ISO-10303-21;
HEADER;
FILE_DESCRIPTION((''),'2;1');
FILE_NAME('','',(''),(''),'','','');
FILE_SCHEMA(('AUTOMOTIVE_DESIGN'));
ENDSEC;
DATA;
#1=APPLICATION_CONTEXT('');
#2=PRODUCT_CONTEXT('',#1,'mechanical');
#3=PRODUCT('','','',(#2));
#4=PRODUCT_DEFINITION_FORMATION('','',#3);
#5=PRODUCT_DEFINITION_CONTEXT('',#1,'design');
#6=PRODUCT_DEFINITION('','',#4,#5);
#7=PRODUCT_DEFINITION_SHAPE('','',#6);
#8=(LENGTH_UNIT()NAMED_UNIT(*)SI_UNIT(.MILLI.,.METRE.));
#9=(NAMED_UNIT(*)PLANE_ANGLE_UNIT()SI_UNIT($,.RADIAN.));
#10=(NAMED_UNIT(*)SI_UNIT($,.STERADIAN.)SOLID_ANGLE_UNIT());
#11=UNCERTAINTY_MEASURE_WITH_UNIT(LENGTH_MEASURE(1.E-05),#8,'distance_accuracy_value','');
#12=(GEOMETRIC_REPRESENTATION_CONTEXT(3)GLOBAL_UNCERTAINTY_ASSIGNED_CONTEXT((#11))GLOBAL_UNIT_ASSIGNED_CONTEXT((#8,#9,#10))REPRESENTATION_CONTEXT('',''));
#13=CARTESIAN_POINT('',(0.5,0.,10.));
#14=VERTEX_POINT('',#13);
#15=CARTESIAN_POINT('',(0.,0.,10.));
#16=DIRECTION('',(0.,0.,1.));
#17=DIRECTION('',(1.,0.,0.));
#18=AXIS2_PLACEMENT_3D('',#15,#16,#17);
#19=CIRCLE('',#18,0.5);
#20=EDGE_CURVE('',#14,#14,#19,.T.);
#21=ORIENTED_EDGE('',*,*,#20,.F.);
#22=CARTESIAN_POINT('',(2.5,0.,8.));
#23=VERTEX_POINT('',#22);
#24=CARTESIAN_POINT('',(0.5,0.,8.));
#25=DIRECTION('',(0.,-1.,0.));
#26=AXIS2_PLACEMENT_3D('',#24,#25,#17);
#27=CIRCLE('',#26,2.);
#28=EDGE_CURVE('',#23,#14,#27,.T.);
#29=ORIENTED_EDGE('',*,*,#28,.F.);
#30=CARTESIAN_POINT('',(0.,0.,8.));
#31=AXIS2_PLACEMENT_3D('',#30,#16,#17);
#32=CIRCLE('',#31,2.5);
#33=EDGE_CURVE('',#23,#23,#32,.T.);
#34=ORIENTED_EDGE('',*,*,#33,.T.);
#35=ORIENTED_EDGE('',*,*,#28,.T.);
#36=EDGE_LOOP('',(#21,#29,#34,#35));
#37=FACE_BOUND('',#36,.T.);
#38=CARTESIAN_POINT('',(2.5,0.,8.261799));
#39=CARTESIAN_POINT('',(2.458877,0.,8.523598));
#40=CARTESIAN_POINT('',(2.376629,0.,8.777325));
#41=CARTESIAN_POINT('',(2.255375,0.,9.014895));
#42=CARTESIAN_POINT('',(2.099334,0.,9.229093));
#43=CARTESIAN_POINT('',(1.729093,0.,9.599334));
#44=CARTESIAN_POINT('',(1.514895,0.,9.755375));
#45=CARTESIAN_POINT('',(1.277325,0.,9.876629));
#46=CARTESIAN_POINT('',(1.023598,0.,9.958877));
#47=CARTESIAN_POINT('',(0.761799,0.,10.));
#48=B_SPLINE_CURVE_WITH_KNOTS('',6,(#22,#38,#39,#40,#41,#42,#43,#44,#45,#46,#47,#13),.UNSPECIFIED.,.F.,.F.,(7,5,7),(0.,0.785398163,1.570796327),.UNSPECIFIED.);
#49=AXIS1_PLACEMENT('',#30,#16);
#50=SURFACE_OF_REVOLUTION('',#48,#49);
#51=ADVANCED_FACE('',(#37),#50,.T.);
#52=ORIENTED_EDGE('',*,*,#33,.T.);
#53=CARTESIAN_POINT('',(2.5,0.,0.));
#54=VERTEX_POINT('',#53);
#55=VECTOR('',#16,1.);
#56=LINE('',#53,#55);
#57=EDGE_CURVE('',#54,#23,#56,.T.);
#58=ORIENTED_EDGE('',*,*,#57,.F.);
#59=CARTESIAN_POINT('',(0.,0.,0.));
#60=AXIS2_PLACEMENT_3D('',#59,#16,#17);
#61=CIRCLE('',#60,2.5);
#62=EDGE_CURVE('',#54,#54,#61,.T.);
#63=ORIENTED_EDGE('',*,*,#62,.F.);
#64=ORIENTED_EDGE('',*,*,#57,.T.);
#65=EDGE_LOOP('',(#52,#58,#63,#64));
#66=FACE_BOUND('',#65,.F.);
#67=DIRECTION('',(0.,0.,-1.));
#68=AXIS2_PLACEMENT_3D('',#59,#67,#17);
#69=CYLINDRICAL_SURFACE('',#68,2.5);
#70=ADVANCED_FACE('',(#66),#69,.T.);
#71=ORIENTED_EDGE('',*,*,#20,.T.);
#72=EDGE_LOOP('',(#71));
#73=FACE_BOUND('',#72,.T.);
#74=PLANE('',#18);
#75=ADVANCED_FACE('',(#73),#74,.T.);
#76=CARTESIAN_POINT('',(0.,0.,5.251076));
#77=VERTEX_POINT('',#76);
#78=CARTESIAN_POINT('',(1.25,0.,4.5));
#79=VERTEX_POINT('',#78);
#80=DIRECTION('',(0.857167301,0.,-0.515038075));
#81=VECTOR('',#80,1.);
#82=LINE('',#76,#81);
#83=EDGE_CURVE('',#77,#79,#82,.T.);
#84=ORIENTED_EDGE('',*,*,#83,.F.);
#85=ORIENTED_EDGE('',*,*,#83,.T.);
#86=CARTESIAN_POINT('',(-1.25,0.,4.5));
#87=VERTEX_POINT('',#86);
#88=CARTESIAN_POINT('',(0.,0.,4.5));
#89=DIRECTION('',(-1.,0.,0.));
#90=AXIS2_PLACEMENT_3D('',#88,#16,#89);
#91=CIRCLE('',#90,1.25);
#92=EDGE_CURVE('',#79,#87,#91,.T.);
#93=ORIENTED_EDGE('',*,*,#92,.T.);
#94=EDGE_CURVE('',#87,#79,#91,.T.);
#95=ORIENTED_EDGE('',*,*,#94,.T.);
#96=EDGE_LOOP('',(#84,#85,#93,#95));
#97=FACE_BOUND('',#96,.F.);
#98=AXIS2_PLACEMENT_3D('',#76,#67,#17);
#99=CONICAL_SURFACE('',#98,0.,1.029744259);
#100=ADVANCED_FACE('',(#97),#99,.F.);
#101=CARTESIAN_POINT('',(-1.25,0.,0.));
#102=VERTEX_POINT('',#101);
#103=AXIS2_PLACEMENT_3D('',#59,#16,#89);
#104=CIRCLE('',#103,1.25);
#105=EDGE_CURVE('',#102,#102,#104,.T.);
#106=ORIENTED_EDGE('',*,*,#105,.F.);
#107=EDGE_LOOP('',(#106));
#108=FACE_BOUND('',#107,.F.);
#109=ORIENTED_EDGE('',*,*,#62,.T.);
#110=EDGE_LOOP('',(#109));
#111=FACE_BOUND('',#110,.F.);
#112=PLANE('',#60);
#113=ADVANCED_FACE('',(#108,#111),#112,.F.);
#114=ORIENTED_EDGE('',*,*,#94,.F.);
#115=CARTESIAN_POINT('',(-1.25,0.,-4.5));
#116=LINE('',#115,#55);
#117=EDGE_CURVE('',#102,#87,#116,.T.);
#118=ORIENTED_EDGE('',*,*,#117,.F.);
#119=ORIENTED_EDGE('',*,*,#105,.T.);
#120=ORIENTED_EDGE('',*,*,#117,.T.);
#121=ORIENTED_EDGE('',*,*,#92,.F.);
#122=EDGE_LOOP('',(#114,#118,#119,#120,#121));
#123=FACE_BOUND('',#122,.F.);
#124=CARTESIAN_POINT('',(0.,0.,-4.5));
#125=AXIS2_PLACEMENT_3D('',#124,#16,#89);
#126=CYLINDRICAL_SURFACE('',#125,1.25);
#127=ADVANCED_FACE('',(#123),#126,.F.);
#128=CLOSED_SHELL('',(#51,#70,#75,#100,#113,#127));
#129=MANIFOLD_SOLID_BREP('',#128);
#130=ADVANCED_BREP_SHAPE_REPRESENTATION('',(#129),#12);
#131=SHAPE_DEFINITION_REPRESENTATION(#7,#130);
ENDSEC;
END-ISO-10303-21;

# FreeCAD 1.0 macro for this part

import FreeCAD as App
import Part
import Sketcher


def edges_at(feature, points):
    """Names of the edges that pass closest to the given points."""
    edges = feature.Shape.Edges
    near = lambda p: min(range(len(edges)), key=lambda i: edges[i].distToShape(Part.Vertex(*p))[0])
    return sorted({f"Edge{near(p) + 1}" for p in points})

doc = App.newDocument("Part")
body = doc.addObject("PartDesign::Body", "Body")

# Sketch on XY plane
sketch1 = body.newObject("Sketcher::SketchObject", "Sketch")
sketch1.AttachmentSupport = (doc.getObject("XY_Plane"), [""])
sketch1.MapMode = "FlatFace"
sketch1.addGeometry(Part.Circle(App.Vector(0, 0, 0), App.Vector(0, 0, 1), 2.5), False)
sketch1.addConstraint([
    Sketcher.Constraint("Coincident", 0, 3, -1, 1),
    Sketcher.Constraint("Diameter", 0, 5.0),
])
pad1 = body.newObject("PartDesign::Pad", "Pad")
pad1.Profile = sketch1
pad1.Length = 10
doc.recompute()

fillet = body.newObject("PartDesign::Fillet", "Fillet")
fillet.Base = (pad1, edges_at(pad1, [(-2.5, 0, 10)]))
fillet.Radius = 2

# Sketch on XY plane
sketch2 = body.newObject("Sketcher::SketchObject", "Sketch001")
sketch2.AttachmentSupport = (doc.getObject("XY_Plane"), [""])
sketch2.MapMode = "FlatFace"
sketch2.addGeometry(Part.Circle(App.Vector(0, 0, 0), App.Vector(0, 0, 1), 1.25), False)
sketch2.addConstraint([
    Sketcher.Constraint("Coincident", 0, 3, -1, 1),
    Sketcher.Constraint("Diameter", 0, 2.5),
])
doc.recompute()
hole = body.newObject("PartDesign::Hole", "Hole")
hole.Profile = sketch2
hole.ThreadType = "None"
hole.Diameter = 2.5
hole.DepthType = "Dimension"
hole.Depth = 4.5
hole.DrillPoint = "Angled"
hole.DrillPointAngle = 118
hole.Reversed = True

doc.recompute()
